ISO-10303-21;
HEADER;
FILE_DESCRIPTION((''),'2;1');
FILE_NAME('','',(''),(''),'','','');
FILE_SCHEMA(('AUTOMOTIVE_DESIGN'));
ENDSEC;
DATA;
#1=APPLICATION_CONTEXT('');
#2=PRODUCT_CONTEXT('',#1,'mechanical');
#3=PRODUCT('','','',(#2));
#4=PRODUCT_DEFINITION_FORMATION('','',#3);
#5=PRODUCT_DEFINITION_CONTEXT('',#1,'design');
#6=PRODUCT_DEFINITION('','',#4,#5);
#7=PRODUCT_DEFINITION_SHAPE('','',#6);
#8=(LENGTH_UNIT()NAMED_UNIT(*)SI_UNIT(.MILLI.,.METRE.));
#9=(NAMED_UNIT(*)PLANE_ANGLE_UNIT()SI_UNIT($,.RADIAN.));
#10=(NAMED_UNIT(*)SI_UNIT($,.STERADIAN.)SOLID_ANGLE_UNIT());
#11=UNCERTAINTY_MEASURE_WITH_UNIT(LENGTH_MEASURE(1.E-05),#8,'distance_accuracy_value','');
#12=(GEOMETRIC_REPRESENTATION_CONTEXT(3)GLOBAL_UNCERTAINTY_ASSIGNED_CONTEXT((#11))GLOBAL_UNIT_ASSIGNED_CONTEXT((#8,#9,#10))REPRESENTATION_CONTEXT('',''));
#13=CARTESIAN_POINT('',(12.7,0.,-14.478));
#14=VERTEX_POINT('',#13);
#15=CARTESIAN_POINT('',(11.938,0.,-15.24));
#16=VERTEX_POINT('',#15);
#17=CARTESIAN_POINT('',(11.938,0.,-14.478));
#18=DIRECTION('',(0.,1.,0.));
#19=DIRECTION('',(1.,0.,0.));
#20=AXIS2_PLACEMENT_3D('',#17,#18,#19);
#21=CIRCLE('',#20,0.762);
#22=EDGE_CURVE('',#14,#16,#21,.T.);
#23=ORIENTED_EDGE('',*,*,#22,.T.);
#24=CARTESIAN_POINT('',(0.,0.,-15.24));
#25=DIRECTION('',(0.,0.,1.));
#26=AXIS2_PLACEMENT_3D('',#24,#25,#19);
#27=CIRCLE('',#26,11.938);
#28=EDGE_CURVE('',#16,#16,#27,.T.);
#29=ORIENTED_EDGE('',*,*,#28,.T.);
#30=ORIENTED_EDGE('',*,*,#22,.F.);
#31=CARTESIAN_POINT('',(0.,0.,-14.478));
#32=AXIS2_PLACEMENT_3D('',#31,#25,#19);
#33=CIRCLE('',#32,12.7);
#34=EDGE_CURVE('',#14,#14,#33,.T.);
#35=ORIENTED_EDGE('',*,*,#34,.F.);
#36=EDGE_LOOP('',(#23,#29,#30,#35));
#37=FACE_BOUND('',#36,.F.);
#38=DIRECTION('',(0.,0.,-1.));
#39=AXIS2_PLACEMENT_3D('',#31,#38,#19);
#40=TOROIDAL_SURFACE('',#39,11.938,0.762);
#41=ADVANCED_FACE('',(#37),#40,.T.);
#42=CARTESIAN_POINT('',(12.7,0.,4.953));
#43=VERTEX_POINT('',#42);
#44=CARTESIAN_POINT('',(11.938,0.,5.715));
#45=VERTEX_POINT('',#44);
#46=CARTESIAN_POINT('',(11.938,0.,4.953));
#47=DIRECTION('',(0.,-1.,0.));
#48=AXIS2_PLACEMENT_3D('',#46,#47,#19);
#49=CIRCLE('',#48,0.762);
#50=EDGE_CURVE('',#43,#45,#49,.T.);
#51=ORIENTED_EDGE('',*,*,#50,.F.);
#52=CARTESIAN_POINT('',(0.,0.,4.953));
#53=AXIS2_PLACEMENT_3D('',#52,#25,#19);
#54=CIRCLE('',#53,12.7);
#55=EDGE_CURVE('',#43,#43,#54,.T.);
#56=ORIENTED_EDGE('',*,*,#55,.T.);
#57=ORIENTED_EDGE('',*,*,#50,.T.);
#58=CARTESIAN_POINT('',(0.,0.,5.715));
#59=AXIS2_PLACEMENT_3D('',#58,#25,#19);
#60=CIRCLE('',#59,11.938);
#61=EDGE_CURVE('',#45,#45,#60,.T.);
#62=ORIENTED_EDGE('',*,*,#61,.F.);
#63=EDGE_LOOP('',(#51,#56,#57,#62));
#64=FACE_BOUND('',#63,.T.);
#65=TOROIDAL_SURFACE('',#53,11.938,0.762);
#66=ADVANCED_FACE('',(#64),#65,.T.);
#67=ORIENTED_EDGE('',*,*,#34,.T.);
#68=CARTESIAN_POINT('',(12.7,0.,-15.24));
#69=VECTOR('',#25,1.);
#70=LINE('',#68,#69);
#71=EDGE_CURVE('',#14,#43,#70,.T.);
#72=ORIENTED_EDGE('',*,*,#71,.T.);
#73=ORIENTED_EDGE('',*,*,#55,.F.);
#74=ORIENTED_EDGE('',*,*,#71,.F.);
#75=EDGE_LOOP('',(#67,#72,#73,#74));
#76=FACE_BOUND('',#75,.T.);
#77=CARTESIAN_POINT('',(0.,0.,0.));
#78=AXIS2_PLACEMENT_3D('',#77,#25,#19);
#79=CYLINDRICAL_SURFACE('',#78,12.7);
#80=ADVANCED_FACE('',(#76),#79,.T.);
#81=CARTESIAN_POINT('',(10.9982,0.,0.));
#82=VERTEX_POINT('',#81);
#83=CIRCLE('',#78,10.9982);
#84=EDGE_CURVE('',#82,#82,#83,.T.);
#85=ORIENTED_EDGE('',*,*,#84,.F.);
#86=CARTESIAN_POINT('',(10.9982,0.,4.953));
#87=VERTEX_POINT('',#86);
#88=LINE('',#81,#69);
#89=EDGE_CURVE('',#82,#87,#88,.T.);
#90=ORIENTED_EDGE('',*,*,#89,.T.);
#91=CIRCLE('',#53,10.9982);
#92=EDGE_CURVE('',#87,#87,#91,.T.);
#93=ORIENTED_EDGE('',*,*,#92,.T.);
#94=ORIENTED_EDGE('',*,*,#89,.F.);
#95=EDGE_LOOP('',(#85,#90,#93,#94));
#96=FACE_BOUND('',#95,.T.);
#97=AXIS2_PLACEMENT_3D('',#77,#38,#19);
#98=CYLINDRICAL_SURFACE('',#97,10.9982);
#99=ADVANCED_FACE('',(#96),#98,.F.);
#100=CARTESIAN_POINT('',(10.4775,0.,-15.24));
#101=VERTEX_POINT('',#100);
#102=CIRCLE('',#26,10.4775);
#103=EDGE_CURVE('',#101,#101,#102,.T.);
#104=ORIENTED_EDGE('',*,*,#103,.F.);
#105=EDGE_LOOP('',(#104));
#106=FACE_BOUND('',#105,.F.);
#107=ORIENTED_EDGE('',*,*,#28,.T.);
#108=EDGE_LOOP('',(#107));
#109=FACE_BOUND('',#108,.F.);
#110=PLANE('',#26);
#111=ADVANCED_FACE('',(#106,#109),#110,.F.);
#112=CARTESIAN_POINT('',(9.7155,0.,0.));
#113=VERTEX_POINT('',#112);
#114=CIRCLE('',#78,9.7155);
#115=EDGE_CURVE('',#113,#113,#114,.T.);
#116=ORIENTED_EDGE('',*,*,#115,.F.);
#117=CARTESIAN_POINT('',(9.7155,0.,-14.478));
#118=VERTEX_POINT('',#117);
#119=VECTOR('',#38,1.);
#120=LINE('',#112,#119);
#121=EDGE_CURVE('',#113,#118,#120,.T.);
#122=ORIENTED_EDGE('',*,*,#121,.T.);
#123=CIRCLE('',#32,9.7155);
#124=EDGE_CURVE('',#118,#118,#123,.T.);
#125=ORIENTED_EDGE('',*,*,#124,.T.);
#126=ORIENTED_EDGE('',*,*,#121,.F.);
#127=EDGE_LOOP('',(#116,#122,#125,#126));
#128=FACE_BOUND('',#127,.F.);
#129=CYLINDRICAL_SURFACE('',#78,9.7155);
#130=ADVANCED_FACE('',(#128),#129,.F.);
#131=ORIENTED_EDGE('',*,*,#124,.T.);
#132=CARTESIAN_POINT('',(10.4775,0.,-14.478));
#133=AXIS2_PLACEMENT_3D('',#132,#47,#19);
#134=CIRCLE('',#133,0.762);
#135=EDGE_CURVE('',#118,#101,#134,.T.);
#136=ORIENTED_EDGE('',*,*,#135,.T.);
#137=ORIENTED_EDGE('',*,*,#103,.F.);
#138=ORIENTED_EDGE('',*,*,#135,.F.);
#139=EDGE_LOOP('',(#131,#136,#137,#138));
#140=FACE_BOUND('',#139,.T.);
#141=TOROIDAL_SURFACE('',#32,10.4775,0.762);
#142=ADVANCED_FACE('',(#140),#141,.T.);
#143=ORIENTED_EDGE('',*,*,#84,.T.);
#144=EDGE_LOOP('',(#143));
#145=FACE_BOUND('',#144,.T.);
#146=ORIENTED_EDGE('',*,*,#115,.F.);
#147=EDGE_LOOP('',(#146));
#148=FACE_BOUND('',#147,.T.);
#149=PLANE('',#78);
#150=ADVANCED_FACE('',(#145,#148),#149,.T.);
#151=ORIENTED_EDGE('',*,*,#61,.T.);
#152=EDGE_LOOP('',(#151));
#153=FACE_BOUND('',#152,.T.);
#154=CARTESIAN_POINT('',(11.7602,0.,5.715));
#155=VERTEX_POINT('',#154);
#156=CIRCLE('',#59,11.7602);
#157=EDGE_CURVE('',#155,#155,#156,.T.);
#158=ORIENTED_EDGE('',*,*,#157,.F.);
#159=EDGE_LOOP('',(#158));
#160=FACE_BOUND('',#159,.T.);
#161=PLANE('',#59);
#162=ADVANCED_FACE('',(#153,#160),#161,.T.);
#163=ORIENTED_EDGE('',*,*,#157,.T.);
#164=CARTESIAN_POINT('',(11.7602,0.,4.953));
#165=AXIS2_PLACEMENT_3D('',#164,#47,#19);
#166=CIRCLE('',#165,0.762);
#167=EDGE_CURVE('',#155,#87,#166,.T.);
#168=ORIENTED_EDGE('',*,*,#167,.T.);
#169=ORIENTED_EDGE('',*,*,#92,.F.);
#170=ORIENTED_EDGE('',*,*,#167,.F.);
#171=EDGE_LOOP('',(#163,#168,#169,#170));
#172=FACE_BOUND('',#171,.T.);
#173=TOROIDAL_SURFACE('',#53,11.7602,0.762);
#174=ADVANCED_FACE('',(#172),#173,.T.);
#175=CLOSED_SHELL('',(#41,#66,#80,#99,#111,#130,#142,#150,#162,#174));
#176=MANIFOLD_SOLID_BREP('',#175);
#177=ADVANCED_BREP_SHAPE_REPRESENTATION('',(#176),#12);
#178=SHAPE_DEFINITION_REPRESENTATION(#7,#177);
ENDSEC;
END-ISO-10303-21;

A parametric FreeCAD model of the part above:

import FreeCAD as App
import Part
import Sketcher
from FreeCAD import Vector
Q = App.Units.Quantity


def edges_at(feature, points):
    """Names of the edges that pass closest to the given points."""
    edges = feature.Shape.Edges
    near = lambda p: min(range(len(edges)), key=lambda i: edges[i].distToShape(Part.Vertex(*p))[0])
    return sorted({f"Edge{near(p) + 1}" for p in points})

doc = App.newDocument("Part")
body = doc.addObject("PartDesign::Body", "Body")

# Sketch on XY plane
sketch1 = body.newObject("Sketcher::SketchObject", "Sketch")
sketch1.AttachmentSupport = (doc.getObject("XY_Plane"), [""])
sketch1.MapMode = "FlatFace"
sketch1.addGeometry([
    Part.Circle(Vector(0, 0, 0), Vector(0, 0, 1), 13),
    Part.Circle(Vector(0, 0, 0), Vector(0, 0, 1), 11),
], False)
sketch1.addConstraint([
    Sketcher.Constraint("Coincident", 0, 3, -1, 1),
    Sketcher.Constraint("Coincident", 1, 3, -1, 1),
    Sketcher.Constraint("Diameter", 0, Q("1 in")),
    Sketcher.Constraint("Diameter", 1, Q("0.866 in")),
])
pad1 = body.newObject("PartDesign::Pad", "Pad")
pad1.Profile = sketch1
pad1.Length = Q("0.225 in")

# Sketch on XY plane
sketch2 = body.newObject("Sketcher::SketchObject", "Sketch001")
sketch2.AttachmentSupport = (doc.getObject("XY_Plane"), [""])
sketch2.MapMode = "FlatFace"
sketch2.addGeometry([
    Part.Circle(Vector(0, 0, 0), Vector(0, 0, 1), 13),
    Part.Circle(Vector(0, 0, 0), Vector(0, 0, 1), 10),
], False)
sketch2.addConstraint([
    Sketcher.Constraint("Coincident", 0, 3, -1, 1),
    Sketcher.Constraint("Coincident", 1, 3, -1, 1),
    Sketcher.Constraint("Diameter", 0, Q("1 in")),
    Sketcher.Constraint("Diameter", 1, Q("0.765 in")),
])
pad2 = body.newObject("PartDesign::Pad", "Pad001")
pad2.Profile = sketch2
pad2.Length = Q("0.6 in")
pad2.Reversed = True
doc.recompute()

fillet = body.newObject("PartDesign::Fillet", "Fillet")
fillet.Base = (pad2, edges_at(pad2, [
    (-9.716, 0, -15.24),
    (-12.7, 0, -15.24),
    (-12.7, 0, 5.715),
    (-10.998, 0, 5.715),
]))
fillet.Radius = Q("0.03 in")

doc.recompute()
